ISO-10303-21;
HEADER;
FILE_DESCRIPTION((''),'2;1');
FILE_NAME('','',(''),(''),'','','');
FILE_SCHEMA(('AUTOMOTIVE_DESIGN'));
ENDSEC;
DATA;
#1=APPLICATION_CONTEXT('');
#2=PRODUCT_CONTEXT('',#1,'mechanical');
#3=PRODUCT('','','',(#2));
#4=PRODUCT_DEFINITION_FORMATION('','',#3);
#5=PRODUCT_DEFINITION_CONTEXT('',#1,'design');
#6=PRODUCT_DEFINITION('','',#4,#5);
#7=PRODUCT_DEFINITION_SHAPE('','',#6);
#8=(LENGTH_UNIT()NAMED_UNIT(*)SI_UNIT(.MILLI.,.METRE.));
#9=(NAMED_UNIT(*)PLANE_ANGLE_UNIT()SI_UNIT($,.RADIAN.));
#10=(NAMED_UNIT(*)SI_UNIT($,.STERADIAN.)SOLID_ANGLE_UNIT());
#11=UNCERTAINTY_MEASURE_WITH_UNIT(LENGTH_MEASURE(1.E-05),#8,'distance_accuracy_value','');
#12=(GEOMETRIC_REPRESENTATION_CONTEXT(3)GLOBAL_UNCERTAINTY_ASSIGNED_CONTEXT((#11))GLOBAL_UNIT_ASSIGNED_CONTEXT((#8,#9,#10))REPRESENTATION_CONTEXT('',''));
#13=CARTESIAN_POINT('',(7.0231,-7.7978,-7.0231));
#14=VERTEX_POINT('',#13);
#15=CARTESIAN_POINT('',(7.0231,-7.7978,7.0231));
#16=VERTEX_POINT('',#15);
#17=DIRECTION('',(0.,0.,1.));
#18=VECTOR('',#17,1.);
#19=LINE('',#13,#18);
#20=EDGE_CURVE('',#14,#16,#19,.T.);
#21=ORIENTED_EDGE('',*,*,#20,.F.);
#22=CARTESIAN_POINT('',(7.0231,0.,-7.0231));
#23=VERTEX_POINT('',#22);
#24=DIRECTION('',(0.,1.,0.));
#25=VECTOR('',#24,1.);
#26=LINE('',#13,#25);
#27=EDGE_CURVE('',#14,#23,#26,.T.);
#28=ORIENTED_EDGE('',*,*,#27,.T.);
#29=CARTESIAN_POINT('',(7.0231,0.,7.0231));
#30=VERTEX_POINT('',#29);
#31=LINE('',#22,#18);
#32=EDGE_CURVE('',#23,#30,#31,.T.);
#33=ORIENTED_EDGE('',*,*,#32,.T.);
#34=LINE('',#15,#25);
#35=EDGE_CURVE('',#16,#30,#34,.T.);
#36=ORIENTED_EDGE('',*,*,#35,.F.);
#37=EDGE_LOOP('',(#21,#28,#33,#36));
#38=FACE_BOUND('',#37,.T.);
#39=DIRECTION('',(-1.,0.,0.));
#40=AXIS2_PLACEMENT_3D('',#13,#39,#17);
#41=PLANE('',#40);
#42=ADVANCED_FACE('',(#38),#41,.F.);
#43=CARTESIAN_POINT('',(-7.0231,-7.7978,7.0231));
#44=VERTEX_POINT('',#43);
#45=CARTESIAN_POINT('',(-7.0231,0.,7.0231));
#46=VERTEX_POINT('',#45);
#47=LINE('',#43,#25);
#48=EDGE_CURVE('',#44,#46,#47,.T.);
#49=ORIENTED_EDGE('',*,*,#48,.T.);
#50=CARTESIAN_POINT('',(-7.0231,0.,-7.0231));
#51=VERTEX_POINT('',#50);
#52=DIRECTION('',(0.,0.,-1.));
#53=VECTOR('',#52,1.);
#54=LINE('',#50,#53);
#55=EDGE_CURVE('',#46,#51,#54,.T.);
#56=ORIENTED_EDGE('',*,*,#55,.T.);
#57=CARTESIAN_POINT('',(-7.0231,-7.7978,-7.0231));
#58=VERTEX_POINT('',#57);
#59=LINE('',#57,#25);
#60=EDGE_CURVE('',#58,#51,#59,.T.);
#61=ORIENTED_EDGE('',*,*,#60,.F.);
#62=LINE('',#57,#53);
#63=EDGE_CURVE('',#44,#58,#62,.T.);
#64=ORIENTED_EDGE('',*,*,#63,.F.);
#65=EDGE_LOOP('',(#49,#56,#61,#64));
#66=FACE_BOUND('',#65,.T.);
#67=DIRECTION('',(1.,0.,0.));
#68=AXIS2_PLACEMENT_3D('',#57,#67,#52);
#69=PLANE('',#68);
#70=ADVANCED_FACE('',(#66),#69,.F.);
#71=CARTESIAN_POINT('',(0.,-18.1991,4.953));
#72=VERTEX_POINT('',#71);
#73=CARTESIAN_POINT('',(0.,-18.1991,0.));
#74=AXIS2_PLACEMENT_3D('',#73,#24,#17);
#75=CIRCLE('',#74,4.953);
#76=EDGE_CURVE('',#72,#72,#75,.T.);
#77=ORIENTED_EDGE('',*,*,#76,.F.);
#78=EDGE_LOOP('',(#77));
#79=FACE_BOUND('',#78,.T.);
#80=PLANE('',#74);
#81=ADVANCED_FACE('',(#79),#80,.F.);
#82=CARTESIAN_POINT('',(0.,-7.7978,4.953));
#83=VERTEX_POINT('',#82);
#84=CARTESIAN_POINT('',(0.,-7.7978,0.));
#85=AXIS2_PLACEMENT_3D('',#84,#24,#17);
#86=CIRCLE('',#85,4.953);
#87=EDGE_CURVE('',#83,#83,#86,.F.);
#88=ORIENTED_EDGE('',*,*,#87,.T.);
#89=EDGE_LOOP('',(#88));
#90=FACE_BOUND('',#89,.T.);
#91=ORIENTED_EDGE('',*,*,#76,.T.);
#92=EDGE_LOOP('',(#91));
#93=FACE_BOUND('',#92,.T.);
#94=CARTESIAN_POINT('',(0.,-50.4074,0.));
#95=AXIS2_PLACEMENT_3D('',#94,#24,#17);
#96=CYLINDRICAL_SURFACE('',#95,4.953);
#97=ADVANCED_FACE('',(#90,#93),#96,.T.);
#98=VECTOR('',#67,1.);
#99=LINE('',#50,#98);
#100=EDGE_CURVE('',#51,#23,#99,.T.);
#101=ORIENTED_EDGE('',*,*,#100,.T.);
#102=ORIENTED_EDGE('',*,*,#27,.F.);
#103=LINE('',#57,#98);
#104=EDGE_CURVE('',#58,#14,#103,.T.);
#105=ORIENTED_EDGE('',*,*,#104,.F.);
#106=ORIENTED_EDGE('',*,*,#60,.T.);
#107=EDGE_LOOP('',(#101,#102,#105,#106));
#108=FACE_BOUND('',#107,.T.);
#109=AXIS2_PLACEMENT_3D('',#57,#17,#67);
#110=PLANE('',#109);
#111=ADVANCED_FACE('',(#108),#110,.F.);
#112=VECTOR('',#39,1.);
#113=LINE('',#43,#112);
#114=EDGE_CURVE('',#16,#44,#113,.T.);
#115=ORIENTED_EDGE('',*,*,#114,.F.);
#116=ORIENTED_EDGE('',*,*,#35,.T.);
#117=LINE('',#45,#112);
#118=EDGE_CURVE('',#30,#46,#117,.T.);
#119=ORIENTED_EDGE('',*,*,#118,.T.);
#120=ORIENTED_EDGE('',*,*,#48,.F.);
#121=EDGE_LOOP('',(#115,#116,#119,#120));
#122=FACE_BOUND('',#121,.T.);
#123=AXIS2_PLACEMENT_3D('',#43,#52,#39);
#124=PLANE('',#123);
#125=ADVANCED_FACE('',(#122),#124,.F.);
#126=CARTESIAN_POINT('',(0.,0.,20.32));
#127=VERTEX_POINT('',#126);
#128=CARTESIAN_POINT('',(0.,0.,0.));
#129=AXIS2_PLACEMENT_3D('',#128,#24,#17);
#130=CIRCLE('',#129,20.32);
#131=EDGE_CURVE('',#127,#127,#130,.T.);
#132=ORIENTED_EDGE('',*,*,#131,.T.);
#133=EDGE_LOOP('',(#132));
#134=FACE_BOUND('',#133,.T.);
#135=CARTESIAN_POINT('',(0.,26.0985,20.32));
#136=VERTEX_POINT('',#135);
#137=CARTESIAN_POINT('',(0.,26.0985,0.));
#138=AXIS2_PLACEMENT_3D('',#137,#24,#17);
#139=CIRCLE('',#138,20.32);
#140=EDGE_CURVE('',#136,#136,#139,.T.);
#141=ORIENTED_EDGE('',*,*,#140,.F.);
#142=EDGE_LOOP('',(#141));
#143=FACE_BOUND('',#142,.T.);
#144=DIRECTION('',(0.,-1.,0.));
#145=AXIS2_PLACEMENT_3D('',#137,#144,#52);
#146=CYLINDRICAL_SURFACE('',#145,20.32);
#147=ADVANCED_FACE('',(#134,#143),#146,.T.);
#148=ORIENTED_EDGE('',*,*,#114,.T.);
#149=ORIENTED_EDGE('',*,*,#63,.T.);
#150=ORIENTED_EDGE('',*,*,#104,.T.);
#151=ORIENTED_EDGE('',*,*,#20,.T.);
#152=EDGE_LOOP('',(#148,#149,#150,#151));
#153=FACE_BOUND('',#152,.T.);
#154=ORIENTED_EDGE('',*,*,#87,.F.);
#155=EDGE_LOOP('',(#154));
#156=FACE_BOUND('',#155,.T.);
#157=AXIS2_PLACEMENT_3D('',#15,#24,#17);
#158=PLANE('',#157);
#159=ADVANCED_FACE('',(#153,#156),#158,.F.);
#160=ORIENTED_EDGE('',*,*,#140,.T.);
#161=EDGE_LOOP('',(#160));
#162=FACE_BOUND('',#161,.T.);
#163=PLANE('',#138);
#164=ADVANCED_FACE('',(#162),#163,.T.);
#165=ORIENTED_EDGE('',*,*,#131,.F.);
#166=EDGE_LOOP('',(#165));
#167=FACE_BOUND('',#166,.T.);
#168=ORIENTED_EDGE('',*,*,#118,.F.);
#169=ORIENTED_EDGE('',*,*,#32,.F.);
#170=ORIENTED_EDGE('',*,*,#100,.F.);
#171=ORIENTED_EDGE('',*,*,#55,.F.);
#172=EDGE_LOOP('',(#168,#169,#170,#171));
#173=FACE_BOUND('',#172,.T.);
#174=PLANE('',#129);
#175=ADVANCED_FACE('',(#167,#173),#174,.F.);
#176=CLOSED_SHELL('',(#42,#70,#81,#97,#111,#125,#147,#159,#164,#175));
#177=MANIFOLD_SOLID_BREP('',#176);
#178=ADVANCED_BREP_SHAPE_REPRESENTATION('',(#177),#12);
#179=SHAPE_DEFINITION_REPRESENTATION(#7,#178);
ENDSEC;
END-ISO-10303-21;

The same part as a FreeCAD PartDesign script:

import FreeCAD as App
import Part
import Sketcher
from FreeCAD import Vector
Q = App.Units.Quantity

doc = App.newDocument("Part")
body = doc.addObject("PartDesign::Body", "Body")

sketch1 = body.newObject("Sketcher::SketchObject", "Sketch")
sketch1.AttachmentSupport = (doc.getObject("XZ_Plane"), [""])
sketch1.MapMode = "FlatFace"
sketch1.addGeometry(Part.Circle(Vector(0, 0, 0), Vector(0, 0, 1), 20), False)
sketch1.addConstraint(Sketcher.Constraint("Coincident", 0, 3, -1, 1))
sketch1.addConstraint(Sketcher.Constraint("Diameter", 0, Q("1.6 in")))
pad1 = body.newObject("PartDesign::Pad", "Pad")
pad1.Profile = sketch1
pad1.Length = Q("1.0275 in")
pad1.Reversed = True

sketch2 = body.newObject("Sketcher::SketchObject", "Sketch001")
sketch2.AttachmentSupport = (doc.getObject("XZ_Plane"), [""])
sketch2.MapMode = "FlatFace"
sketch2.addGeometry(Part.LineSegment(Vector(-7, 7, 0), Vector(-7, -7, 0)), False)
sketch2.addGeometry(Part.LineSegment(Vector(-7, -7, 0), Vector(7, -7, 0)), False)
sketch2.addGeometry(Part.LineSegment(Vector(7, -7, 0), Vector(7, 7, 0)), False)
sketch2.addGeometry(Part.LineSegment(Vector(7, 7, 0), Vector(-7, 7, 0)), False)
sketch2.addConstraint(Sketcher.Constraint("Coincident", 0, 2, 1, 1))
sketch2.addConstraint(Sketcher.Constraint("Coincident", 1, 2, 2, 1))
sketch2.addConstraint(Sketcher.Constraint("Coincident", 2, 2, 3, 1))
sketch2.addConstraint(Sketcher.Constraint("Coincident", 3, 2, 0, 1))
sketch2.addConstraint(Sketcher.Constraint("Vertical", 0))
sketch2.addConstraint(Sketcher.Constraint("Horizontal", 1))
sketch2.addConstraint(Sketcher.Constraint("Vertical", 2))
sketch2.addConstraint(Sketcher.Constraint("Horizontal", 3))
sketch2.addConstraint(Sketcher.Constraint("Symmetric", 0, 2, 2, 2, -1, 1))
sketch2.addConstraint(Sketcher.Constraint("Equal", 3, 0))
sketch2.addConstraint(Sketcher.Constraint("DistanceX", 1, 1, 1, 2, Q("0.553 in")))
pad2 = body.newObject("PartDesign::Pad", "Pad001")
pad2.Profile = sketch2
pad2.Length = Q("0.307 in")

sketch3 = body.newObject("Sketcher::SketchObject", "Sketch002")
sketch3.AttachmentSupport = (doc.getObject("XZ_Plane"), [""])
sketch3.MapMode = "FlatFace"
sketch3.AttachmentOffset = App.Placement(Vector(0, 0, 0.307 * 25.4), App.Rotation())
sketch3.addGeometry(Part.Circle(Vector(0, 0, 0), Vector(0, 0, 1), 5), False)
sketch3.addConstraint(Sketcher.Constraint("Coincident", 0, 3, -1, 1))
sketch3.addConstraint(Sketcher.Constraint("Diameter", 0, Q("0.39 in")))
pad3 = body.newObject("PartDesign::Pad", "Pad002")
pad3.Profile = sketch3
pad3.Length = Q("0.4095 in")

doc.recompute()
